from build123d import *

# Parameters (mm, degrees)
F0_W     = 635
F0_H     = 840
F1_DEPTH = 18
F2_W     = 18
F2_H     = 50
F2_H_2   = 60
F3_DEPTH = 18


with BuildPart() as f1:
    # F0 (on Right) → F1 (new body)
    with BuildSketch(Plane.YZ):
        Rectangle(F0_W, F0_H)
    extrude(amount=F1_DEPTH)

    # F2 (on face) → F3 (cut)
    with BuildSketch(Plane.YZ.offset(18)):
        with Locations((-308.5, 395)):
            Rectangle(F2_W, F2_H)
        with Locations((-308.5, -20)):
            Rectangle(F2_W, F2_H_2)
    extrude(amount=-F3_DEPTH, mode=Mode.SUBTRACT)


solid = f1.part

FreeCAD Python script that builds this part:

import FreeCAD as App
import Part
import Sketcher
from FreeCAD import Vector


def add_polygon(sketch, points):
    """Adds a closed chain of lines whose ends are joined by coincident constraints."""
    first, n = sketch.GeometryCount, len(points)
    for a, b in zip(points, points[1:] + points[:1]):
        sketch.addGeometry(Part.LineSegment(App.Vector(*a, 0), App.Vector(*b, 0)), False)
    for i in range(n):
        sketch.addConstraint(Sketcher.Constraint("Coincident", first + i, 2, first + (i + 1) % n, 1))

doc = App.newDocument("Part")
params = doc.addObject("Spreadsheet::Sheet", "Params")
for row, (alias, value) in enumerate([
    ("sketch1_width", "635 mm"),
    ("sketch1_height", "840 mm"),
    ("pad1_length", "18 mm"),
    ("sketch2_width", "18 mm"),
    ("sketch2_height", "50 mm"),
    ("sketch2_height2", "60 mm"),
    ("pocket1_length", "18 mm"),
], start=1):
    params.set(f"A{row}", alias)
    params.set(f"B{row}", "=" + value)
    params.setAlias(f"B{row}", alias)

body = doc.addObject("PartDesign::Body", "Body")

sketch1 = doc.addObject("Sketcher::SketchObject", "Sketch")
body.addObject(sketch1)
sketch1.AttachmentSupport = (doc.YZ_Plane, [""])
sketch1.MapMode = "FlatFace"
add_polygon(sketch1, [(-318, 420), (-318, -420), (318, -420), (318, 420)])
sketch1.addConstraint(Sketcher.Constraint("Vertical", 0))
sketch1.addConstraint(Sketcher.Constraint("Horizontal", 1))
sketch1.addConstraint(Sketcher.Constraint("Vertical", 2))
sketch1.addConstraint(Sketcher.Constraint("Horizontal", 3))
sketch1.addConstraint(Sketcher.Constraint("Symmetric", 0, 2, 2, 2, -1, 1))
sketch1.addConstraint(Sketcher.Constraint("DistanceX", 1, 1, 1, 2, 635.0))
sketch1.addConstraint(Sketcher.Constraint("DistanceY", 0, 2, 0, 1, 840.0))
sketch1.setExpression("Constraints[9]", "Params.sketch1_width")
sketch1.setExpression("Constraints[10]", "Params.sketch1_height")
pad1 = doc.addObject("PartDesign::Pad", "Pad")
body.addObject(pad1)
pad1.Profile = sketch1
pad1.setExpression("Length", "Params.pad1_length")

sketch2 = doc.addObject("Sketcher::SketchObject", "Sketch001")
body.addObject(sketch2)
sketch2.AttachmentSupport = (doc.YZ_Plane, [""])
sketch2.MapMode = "FlatFace"
sketch2.AttachmentOffset = App.Placement(Vector(0, 0, 18), App.Rotation())
add_polygon(sketch2, [(-318, 420), (-318, 370), (-300, 370), (-300, 420)])
add_polygon(sketch2, [(-318, 10), (-318, -50), (-300, -50), (-300, 10)])
sketch2.addConstraint(Sketcher.Constraint("Vertical", 0))
sketch2.addConstraint(Sketcher.Constraint("Horizontal", 1))
sketch2.addConstraint(Sketcher.Constraint("Vertical", 2))
sketch2.addConstraint(Sketcher.Constraint("Horizontal", 3))
sketch2.addConstraint(Sketcher.Constraint("Vertical", 4))
sketch2.addConstraint(Sketcher.Constraint("Horizontal", 5))
sketch2.addConstraint(Sketcher.Constraint("Vertical", 6))
sketch2.addConstraint(Sketcher.Constraint("Horizontal", 7))
sketch2.addConstraint(Sketcher.Constraint("Vertical", 3, 2, 4, 2))
sketch2.addConstraint(Sketcher.Constraint("Vertical", 2, 2, 5, 2))
sketch2.addConstraint(Sketcher.Constraint("DistanceX", 1, 1, 1, 2, 18.0))
sketch2.addConstraint(Sketcher.Constraint("DistanceY", 0, 2, 0, 1, 50.0))
sketch2.addConstraint(Sketcher.Constraint("DistanceY", 4, 2, 4, 1, 60.0))
sketch2.addConstraint(Sketcher.Constraint("DistanceY", -1, 1, 0, 2, 370.0))
sketch2.addConstraint(Sketcher.Constraint("DistanceY", 4, 2, -1, 1, 50.0))
sketch2.addConstraint(Sketcher.Constraint("DistanceX", 0, 2, -1, 1, 317.5))
sketch2.setExpression("Constraints[18]", "Params.sketch2_width")
sketch2.setExpression("Constraints[19]", "Params.sketch2_height")
sketch2.setExpression("Constraints[20]", "Params.sketch2_height2")
pocket1 = doc.addObject("PartDesign::Pocket", "Pocket")
body.addObject(pocket1)
pocket1.Profile = sketch2
pocket1.setExpression("Length", "Params.pocket1_length")

doc.recompute()
